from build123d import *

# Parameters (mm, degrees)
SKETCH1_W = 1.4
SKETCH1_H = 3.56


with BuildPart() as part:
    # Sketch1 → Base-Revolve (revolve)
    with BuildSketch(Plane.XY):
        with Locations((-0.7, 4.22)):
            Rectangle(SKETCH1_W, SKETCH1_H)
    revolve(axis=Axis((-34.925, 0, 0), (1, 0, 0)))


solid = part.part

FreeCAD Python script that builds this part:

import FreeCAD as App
import Part
import Sketcher
from FreeCAD import Vector

doc = App.newDocument("Part")
body = doc.addObject("PartDesign::Body", "Body")

# Sketch on XY plane
sketch1 = body.newObject("Sketcher::SketchObject", "Sketch")
sketch1.AttachmentSupport = (doc.getObject("XY_Plane"), [""])
sketch1.MapMode = "FlatFace"
sketch1.addGeometry([
    Part.LineSegment(Vector(-1.4, 6, 0), Vector(-1.4, 2.4, 0)),
    Part.LineSegment(Vector(-1.4, 2.4, 0), Vector(0, 2.4, 0)),
    Part.LineSegment(Vector(0, 2.4, 0), Vector(0, 6, 0)),
    Part.LineSegment(Vector(0, 6, 0), Vector(-1.4, 6, 0)),
], False)
sketch1.addConstraint([
    Sketcher.Constraint("Coincident", 0, 2, 1, 1),
    Sketcher.Constraint("Coincident", 1, 2, 2, 1),
    Sketcher.Constraint("Coincident", 2, 2, 3, 1),
    Sketcher.Constraint("Coincident", 3, 2, 0, 1),
    Sketcher.Constraint("Vertical", 0),
    Sketcher.Constraint("Horizontal", 1),
    Sketcher.Constraint("Vertical", 2),
    Sketcher.Constraint("Horizontal", 3),
    Sketcher.Constraint("PointOnObject", 1, 2, -2),
    Sketcher.Constraint("DistanceX", 1, 1, 1, 2, 1.4),
    Sketcher.Constraint("DistanceY", -1, 1, 2, 2, 6.0),
    Sketcher.Constraint("DistanceY", 0, 2, 0, 1, 3.56),
])
revolution = body.newObject("PartDesign::Revolution", "Revolution")
revolution.Profile = sketch1
revolution.ReferenceAxis = (sketch1, ["H_Axis"])
revolution.Angle = 360

doc.recompute()
